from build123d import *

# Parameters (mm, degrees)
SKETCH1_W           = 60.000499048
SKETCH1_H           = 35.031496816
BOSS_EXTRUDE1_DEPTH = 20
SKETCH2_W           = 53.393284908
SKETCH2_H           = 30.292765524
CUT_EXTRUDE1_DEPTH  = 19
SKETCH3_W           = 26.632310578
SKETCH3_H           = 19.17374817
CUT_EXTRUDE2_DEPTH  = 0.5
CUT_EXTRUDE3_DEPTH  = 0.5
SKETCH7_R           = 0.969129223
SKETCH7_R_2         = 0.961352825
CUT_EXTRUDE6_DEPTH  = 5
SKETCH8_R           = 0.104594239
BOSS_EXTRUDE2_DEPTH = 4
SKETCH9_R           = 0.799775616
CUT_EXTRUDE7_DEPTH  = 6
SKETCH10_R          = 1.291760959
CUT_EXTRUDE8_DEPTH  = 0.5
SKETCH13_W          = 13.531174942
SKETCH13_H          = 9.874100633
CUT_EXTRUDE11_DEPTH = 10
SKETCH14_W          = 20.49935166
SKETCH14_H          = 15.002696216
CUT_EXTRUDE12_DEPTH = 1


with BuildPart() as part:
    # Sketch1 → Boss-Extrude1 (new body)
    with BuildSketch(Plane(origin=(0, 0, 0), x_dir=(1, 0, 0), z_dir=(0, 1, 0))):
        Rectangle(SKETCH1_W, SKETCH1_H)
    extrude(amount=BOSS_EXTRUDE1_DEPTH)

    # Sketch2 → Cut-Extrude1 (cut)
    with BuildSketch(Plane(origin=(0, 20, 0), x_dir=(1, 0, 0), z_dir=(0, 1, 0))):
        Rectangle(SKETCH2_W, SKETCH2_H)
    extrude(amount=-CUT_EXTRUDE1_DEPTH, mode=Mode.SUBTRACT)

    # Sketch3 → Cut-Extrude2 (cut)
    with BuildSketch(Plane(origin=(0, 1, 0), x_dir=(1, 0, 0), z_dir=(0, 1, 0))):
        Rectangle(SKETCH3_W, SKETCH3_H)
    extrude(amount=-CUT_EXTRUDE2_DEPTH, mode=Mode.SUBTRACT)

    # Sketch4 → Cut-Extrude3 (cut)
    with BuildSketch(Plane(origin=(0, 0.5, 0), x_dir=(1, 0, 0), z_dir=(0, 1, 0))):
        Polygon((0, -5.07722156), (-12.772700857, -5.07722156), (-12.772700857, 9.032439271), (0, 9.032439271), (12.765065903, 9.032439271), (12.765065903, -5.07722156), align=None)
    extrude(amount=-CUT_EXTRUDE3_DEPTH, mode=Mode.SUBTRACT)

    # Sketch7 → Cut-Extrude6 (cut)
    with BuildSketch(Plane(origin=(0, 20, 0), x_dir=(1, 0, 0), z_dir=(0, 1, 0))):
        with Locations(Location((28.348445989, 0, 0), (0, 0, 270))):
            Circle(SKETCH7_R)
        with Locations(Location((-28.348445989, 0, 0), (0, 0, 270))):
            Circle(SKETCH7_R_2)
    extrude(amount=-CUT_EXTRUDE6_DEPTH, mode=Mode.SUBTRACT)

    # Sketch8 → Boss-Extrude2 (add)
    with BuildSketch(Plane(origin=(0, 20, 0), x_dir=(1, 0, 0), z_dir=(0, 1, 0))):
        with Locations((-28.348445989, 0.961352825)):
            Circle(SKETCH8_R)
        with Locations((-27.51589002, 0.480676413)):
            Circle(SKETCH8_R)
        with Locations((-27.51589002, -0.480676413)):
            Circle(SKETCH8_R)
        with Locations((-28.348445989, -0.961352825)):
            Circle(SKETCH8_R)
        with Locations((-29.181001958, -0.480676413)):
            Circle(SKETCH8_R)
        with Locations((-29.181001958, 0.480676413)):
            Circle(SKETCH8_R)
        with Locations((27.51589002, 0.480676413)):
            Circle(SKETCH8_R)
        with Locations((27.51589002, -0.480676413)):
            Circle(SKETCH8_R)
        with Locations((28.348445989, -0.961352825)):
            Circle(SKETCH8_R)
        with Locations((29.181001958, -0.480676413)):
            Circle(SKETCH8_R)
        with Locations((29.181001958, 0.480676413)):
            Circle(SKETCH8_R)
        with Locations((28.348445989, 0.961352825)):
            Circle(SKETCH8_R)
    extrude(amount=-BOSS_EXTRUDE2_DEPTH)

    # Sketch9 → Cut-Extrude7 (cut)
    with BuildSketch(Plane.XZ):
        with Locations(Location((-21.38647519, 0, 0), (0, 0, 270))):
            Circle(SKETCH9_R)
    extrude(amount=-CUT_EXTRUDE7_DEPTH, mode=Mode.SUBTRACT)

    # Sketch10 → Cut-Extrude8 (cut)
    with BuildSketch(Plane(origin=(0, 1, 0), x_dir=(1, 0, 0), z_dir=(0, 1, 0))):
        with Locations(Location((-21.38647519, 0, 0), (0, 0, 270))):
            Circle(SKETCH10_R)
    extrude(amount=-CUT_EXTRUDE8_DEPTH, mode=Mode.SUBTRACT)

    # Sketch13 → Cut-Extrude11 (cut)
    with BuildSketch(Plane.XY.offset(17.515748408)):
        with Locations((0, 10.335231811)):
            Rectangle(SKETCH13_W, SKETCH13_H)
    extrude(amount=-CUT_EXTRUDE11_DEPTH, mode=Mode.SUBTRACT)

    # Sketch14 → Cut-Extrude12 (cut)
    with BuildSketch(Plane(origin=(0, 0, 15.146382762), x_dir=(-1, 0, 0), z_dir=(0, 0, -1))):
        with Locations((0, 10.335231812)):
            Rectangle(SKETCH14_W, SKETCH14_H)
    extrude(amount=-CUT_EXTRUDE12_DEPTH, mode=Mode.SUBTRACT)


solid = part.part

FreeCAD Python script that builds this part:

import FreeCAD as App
import Part
import Sketcher

V = App.Vector
Q = App.Units.Quantity

doc = App.newDocument("Part")
body = doc.addObject("PartDesign::Body", "Body")

# Sketch on XZ plane
sketch1 = body.newObject("Sketcher::SketchObject", "Sketch")
sketch1.AttachmentSupport = (doc.getObject("XZ_Plane"), [""])
sketch1.MapMode = "FlatFace"
sketch1.addGeometry(Part.LineSegment(V(-30.00025, -17.515748, 0), V(-30.00025, 17.515748, 0)), False)
sketch1.addGeometry(Part.LineSegment(V(-30.00025, 17.515748, 0), V(30.00025, 17.515748, 0)), False)
sketch1.addGeometry(Part.LineSegment(V(30.00025, 17.515748, 0), V(30.00025, -17.515748, 0)), False)
sketch1.addGeometry(Part.LineSegment(V(30.00025, -17.515748, 0), V(-30.00025, -17.515748, 0)), False)
sketch1.addConstraint(Sketcher.Constraint("Coincident", 0, 2, 1, 1))
sketch1.addConstraint(Sketcher.Constraint("Coincident", 1, 2, 2, 1))
sketch1.addConstraint(Sketcher.Constraint("Coincident", 2, 2, 3, 1))
sketch1.addConstraint(Sketcher.Constraint("Coincident", 3, 2, 0, 1))
sketch1.addConstraint(Sketcher.Constraint("Vertical", 0))
sketch1.addConstraint(Sketcher.Constraint("Horizontal", 1))
sketch1.addConstraint(Sketcher.Constraint("Vertical", 2))
sketch1.addConstraint(Sketcher.Constraint("Horizontal", 3))
sketch1.addConstraint(Sketcher.Constraint("Symmetric", 0, 2, 2, 2, -1, 1))
sketch1.addConstraint(Sketcher.Constraint("DistanceX", 1, 1, 1, 2, Q("60.000499 mm")))
sketch1.addConstraint(Sketcher.Constraint("DistanceY", 0, 1, 0, 2, Q("35.031497 mm")))
pad1 = body.newObject("PartDesign::Pad", "Pad")
pad1.Profile = sketch1
pad1.Length = 20
pad1.Reversed = True

# Sketch on XZ plane
sketch2 = body.newObject("Sketcher::SketchObject", "Sketch001")
sketch2.AttachmentSupport = (doc.getObject("XZ_Plane"), [""])
sketch2.MapMode = "FlatFace"
sketch2.AttachmentOffset = App.Placement(V(0, 0, -20), App.Rotation())
sketch2.addGeometry(Part.LineSegment(V(-26.696642, -15.146383, 0), V(-26.696642, 15.146383, 0)), False)
sketch2.addGeometry(Part.LineSegment(V(-26.696642, 15.146383, 0), V(26.696642, 15.146383, 0)), False)
sketch2.addGeometry(Part.LineSegment(V(26.696642, 15.146383, 0), V(26.696642, -15.146383, 0)), False)
sketch2.addGeometry(Part.LineSegment(V(26.696642, -15.146383, 0), V(-26.696642, -15.146383, 0)), False)
sketch2.addConstraint(Sketcher.Constraint("Coincident", 0, 2, 1, 1))
sketch2.addConstraint(Sketcher.Constraint("Coincident", 1, 2, 2, 1))
sketch2.addConstraint(Sketcher.Constraint("Coincident", 2, 2, 3, 1))
sketch2.addConstraint(Sketcher.Constraint("Coincident", 3, 2, 0, 1))
sketch2.addConstraint(Sketcher.Constraint("Vertical", 0))
sketch2.addConstraint(Sketcher.Constraint("Horizontal", 1))
sketch2.addConstraint(Sketcher.Constraint("Vertical", 2))
sketch2.addConstraint(Sketcher.Constraint("Horizontal", 3))
sketch2.addConstraint(Sketcher.Constraint("Symmetric", 0, 2, 2, 2, -1, 1))
sketch2.addConstraint(Sketcher.Constraint("DistanceX", 1, 1, 1, 2, Q("53.393285 mm")))
sketch2.addConstraint(Sketcher.Constraint("DistanceY", 0, 1, 0, 2, Q("30.292766 mm")))
pocket1 = body.newObject("PartDesign::Pocket", "Pocket")
pocket1.Profile = sketch2
pocket1.Length = 19
pocket1.Reversed = True

# Sketch on XZ plane
sketch3 = body.newObject("Sketcher::SketchObject", "Sketch002")
sketch3.AttachmentSupport = (doc.getObject("XZ_Plane"), [""])
sketch3.MapMode = "FlatFace"
sketch3.AttachmentOffset = App.Placement(V(0, 0, -1), App.Rotation())
sketch3.addGeometry(Part.LineSegment(V(-13.316155, -9.586874, 0), V(-13.316155, 9.586874, 0)), False)
sketch3.addGeometry(Part.LineSegment(V(-13.316155, 9.586874, 0), V(13.316155, 9.586874, 0)), False)
sketch3.addGeometry(Part.LineSegment(V(13.316155, 9.586874, 0), V(13.316155, -9.586874, 0)), False)
sketch3.addGeometry(Part.LineSegment(V(13.316155, -9.586874, 0), V(-13.316155, -9.586874, 0)), False)
sketch3.addConstraint(Sketcher.Constraint("Coincident", 0, 2, 1, 1))
sketch3.addConstraint(Sketcher.Constraint("Coincident", 1, 2, 2, 1))
sketch3.addConstraint(Sketcher.Constraint("Coincident", 2, 2, 3, 1))
sketch3.addConstraint(Sketcher.Constraint("Coincident", 3, 2, 0, 1))
sketch3.addConstraint(Sketcher.Constraint("Vertical", 0))
sketch3.addConstraint(Sketcher.Constraint("Horizontal", 1))
sketch3.addConstraint(Sketcher.Constraint("Vertical", 2))
sketch3.addConstraint(Sketcher.Constraint("Horizontal", 3))
sketch3.addConstraint(Sketcher.Constraint("Symmetric", 0, 2, 2, 2, -1, 1))
sketch3.addConstraint(Sketcher.Constraint("DistanceX", 1, 1, 1, 2, Q("26.632311 mm")))
sketch3.addConstraint(Sketcher.Constraint("DistanceY", 0, 1, 0, 2, Q("19.173748 mm")))
pocket2 = body.newObject("PartDesign::Pocket", "Pocket001")
pocket2.Profile = sketch3
pocket2.Length = 0.5
pocket2.Reversed = True

# Sketch on XZ plane
sketch4 = body.newObject("Sketcher::SketchObject", "Sketch003")
sketch4.AttachmentSupport = (doc.getObject("XZ_Plane"), [""])
sketch4.MapMode = "FlatFace"
sketch4.AttachmentOffset = App.Placement(V(0, 0, -0.5), App.Rotation())
sketch4.addGeometry(Part.LineSegment(V(-12.772701, 5.077222, 0), V(12.765066, 5.077222, 0)), False)
sketch4.addGeometry(Part.LineSegment(V(12.765066, 5.077222, 0), V(12.765066, -9.032439, 0)), False)
sketch4.addGeometry(Part.LineSegment(V(12.765066, -9.032439, 0), V(-12.772701, -9.032439, 0)), False)
sketch4.addGeometry(Part.LineSegment(V(-12.772701, -9.032439, 0), V(-12.772701, 5.077222, 0)), False)
sketch4.addConstraint(Sketcher.Constraint("Coincident", 0, 2, 1, 1))
sketch4.addConstraint(Sketcher.Constraint("Coincident", 1, 2, 2, 1))
sketch4.addConstraint(Sketcher.Constraint("Coincident", 2, 2, 3, 1))
sketch4.addConstraint(Sketcher.Constraint("Coincident", 3, 2, 0, 1))
sketch4.addConstraint(Sketcher.Constraint("Horizontal", 0))
sketch4.addConstraint(Sketcher.Constraint("Vertical", 1))
sketch4.addConstraint(Sketcher.Constraint("Horizontal", 2))
sketch4.addConstraint(Sketcher.Constraint("Vertical", 3))
sketch4.addConstraint(Sketcher.Constraint("DistanceY", 1, 2, 1, 1, Q("14.109661 mm")))
sketch4.addConstraint(Sketcher.Constraint("DistanceX", 2, 2, -1, 1, Q("12.772701 mm")))
sketch4.addConstraint(Sketcher.Constraint("DistanceX", 0, 1, 0, 2, Q("25.537767 mm")))
sketch4.addConstraint(Sketcher.Constraint("DistanceY", -1, 1, 0, 2, Q("5.077222 mm")))
pocket3 = body.newObject("PartDesign::Pocket", "Pocket002")
pocket3.Profile = sketch4
pocket3.Length = 0.5
pocket3.Reversed = True

# Sketch on XZ plane
sketch5 = body.newObject("Sketcher::SketchObject", "Sketch004")
sketch5.AttachmentSupport = (doc.getObject("XZ_Plane"), [""])
sketch5.MapMode = "FlatFace"
sketch5.AttachmentOffset = App.Placement(V(0, 0, -20), App.Rotation())
sketch5.addGeometry(Part.Circle(V(28.348446, 0, 0), V(0, 0, 1), 0.969129), False)
sketch5.addGeometry(Part.Circle(V(-28.348446, 0, 0), V(0, 0, 1), 0.961353), False)
sketch5.addConstraint(Sketcher.Constraint("Symmetric", 0, 3, 1, 3, -1, 1))
sketch5.addConstraint(Sketcher.Constraint("PointOnObject", 0, 3, -1))
sketch5.addConstraint(Sketcher.Constraint("Diameter", 0, Q("1.938258 mm")))
sketch5.addConstraint(Sketcher.Constraint("Diameter", 1, Q("1.922706 mm")))
sketch5.addConstraint(Sketcher.Constraint("DistanceX", 1, 3, 0, 3, Q("56.696892 mm")))
pocket4 = body.newObject("PartDesign::Pocket", "Pocket003")
pocket4.Profile = sketch5
pocket4.Length = 5
pocket4.Reversed = True

# Sketch on XZ plane
sketch6 = body.newObject("Sketcher::SketchObject", "Sketch005")
sketch6.AttachmentSupport = (doc.getObject("XZ_Plane"), [""])
sketch6.MapMode = "FlatFace"
sketch6.AttachmentOffset = App.Placement(V(0, 0, -20), App.Rotation())
sketch6.addGeometry(Part.Circle(V(-28.348446, -0.961353, 0), V(0, 0, 1), 0.104594), False)
sketch6.addGeometry(Part.Circle(V(-27.51589, -0.480676, 0), V(0, 0, 1), 0.104594), False)
sketch6.addGeometry(Part.Circle(V(-27.51589, 0.480676, 0), V(0, 0, 1), 0.104594), False)
sketch6.addGeometry(Part.Circle(V(-28.348446, 0.961353, 0), V(0, 0, 1), 0.104594), False)
sketch6.addGeometry(Part.Circle(V(-29.181002, 0.480676, 0), V(0, 0, 1), 0.104594), False)
sketch6.addGeometry(Part.Circle(V(-29.181002, -0.480676, 0), V(0, 0, 1), 0.104594), False)
sketch6.addGeometry(Part.Circle(V(27.51589, -0.480676, 0), V(0, 0, 1), 0.104594), False)
sketch6.addGeometry(Part.Circle(V(27.51589, 0.480676, 0), V(0, 0, 1), 0.104594), False)
sketch6.addGeometry(Part.Circle(V(28.348446, 0.961353, 0), V(0, 0, 1), 0.104594), False)
sketch6.addGeometry(Part.Circle(V(29.181002, 0.480676, 0), V(0, 0, 1), 0.104594), False)
sketch6.addGeometry(Part.Circle(V(29.181002, -0.480676, 0), V(0, 0, 1), 0.104594), False)
sketch6.addGeometry(Part.Circle(V(28.348446, -0.961353, 0), V(0, 0, 1), 0.104594), False)
sketch6.addConstraint(Sketcher.Constraint("Equal", 0, 1))
sketch6.addConstraint(Sketcher.Constraint("Equal", 1, 2))
sketch6.addConstraint(Sketcher.Constraint("Equal", 2, 3))
sketch6.addConstraint(Sketcher.Constraint("Equal", 3, 4))
sketch6.addConstraint(Sketcher.Constraint("Equal", 4, 5))
sketch6.addConstraint(Sketcher.Constraint("Equal", 5, 6))
sketch6.addConstraint(Sketcher.Constraint("Equal", 6, 7))
sketch6.addConstraint(Sketcher.Constraint("Equal", 7, 8))
sketch6.addConstraint(Sketcher.Constraint("Equal", 8, 9))
sketch6.addConstraint(Sketcher.Constraint("Equal", 9, 10))
sketch6.addConstraint(Sketcher.Constraint("Equal", 10, 11))
sketch6.addConstraint(Sketcher.Constraint("Symmetric", 2, 3, 6, 3, -1, 1))
sketch6.addConstraint(Sketcher.Constraint("Symmetric", 1, 3, 7, 3, -1, 1))
sketch6.addConstraint(Sketcher.Constraint("Symmetric", 0, 3, 8, 3, -1, 1))
sketch6.addConstraint(Sketcher.Constraint("Symmetric", 5, 3, 9, 3, -1, 1))
sketch6.addConstraint(Sketcher.Constraint("Symmetric", 4, 3, 10, 3, -1, 1))
sketch6.addConstraint(Sketcher.Constraint("Symmetric", 3, 3, 11, 3, -1, 1))
sketch6.addConstraint(Sketcher.Constraint("Symmetric", 1, 3, 6, 3, -2))
sketch6.addConstraint(Sketcher.Constraint("Symmetric", 3, 3, 8, 3, -2))
sketch6.addConstraint(Sketcher.Constraint("Symmetric", 4, 3, 9, 3, -2))
sketch6.addConstraint(Sketcher.Constraint("Horizontal", 2, 3, 4, 3))
sketch6.addConstraint(Sketcher.Constraint("Diameter", 0, Q("0.209188 mm")))
sketch6.addConstraint(Sketcher.Constraint("DistanceX", 4, 3, -1, 1, Q("29.181002 mm")))
sketch6.addConstraint(Sketcher.Constraint("DistanceX", 1, 3, -1, 1, Q("27.51589 mm")))
sketch6.addConstraint(Sketcher.Constraint("DistanceY", 0, 3, 2, 3, Q("1.442029 mm")))
sketch6.addConstraint(Sketcher.Constraint("DistanceX", 3, 3, 8, 3, Q("56.696892 mm")))
sketch6.addConstraint(Sketcher.Constraint("DistanceY", 0, 3, -1, 1, Q("0.961353 mm")))
pad2 = body.newObject("PartDesign::Pad", "Pad001")
pad2.Profile = sketch6
pad2.Length = 4

# Sketch on XZ plane
sketch7 = body.newObject("Sketcher::SketchObject", "Sketch006")
sketch7.AttachmentSupport = (doc.getObject("XZ_Plane"), [""])
sketch7.MapMode = "FlatFace"
sketch7.addGeometry(Part.Circle(V(-21.386475, 0, 0), V(0, 0, 1), 0.799776), False)
sketch7.addConstraint(Sketcher.Constraint("PointOnObject", 0, 3, -1))
sketch7.addConstraint(Sketcher.Constraint("Diameter", 0, Q("1.599551 mm")))
sketch7.addConstraint(Sketcher.Constraint("DistanceX", 0, 3, -1, 1, Q("21.386475 mm")))
pocket5 = body.newObject("PartDesign::Pocket", "Pocket004")
pocket5.Profile = sketch7
pocket5.Length = 6

# Sketch on XZ plane
sketch8 = body.newObject("Sketcher::SketchObject", "Sketch007")
sketch8.AttachmentSupport = (doc.getObject("XZ_Plane"), [""])
sketch8.MapMode = "FlatFace"
sketch8.AttachmentOffset = App.Placement(V(0, 0, -1), App.Rotation())
sketch8.addGeometry(Part.Circle(V(-21.386475, 0, 0), V(0, 0, 1), 1.291761), False)
sketch8.addConstraint(Sketcher.Constraint("PointOnObject", 0, 3, -1))
sketch8.addConstraint(Sketcher.Constraint("Diameter", 0, Q("2.583522 mm")))
sketch8.addConstraint(Sketcher.Constraint("DistanceX", 0, 3, -1, 1, Q("21.386475 mm")))
pocket6 = body.newObject("PartDesign::Pocket", "Pocket005")
pocket6.Profile = sketch8
pocket6.Length = 0.5
pocket6.Reversed = True

# Sketch on XY plane
sketch9 = body.newObject("Sketcher::SketchObject", "Sketch008")
sketch9.AttachmentSupport = (doc.getObject("XY_Plane"), [""])
sketch9.MapMode = "FlatFace"
sketch9.AttachmentOffset = App.Placement(V(0, 0, 17.515748), App.Rotation())
sketch9.addGeometry(Part.LineSegment(V(-6.765587, 15.272282, 0), V(-6.765587, 5.398181, 0)), False)
sketch9.addGeometry(Part.LineSegment(V(-6.765587, 5.398181, 0), V(6.765587, 5.398181, 0)), False)
sketch9.addGeometry(Part.LineSegment(V(6.765587, 5.398181, 0), V(6.765587, 15.272282, 0)), False)
sketch9.addGeometry(Part.LineSegment(V(6.765587, 15.272282, 0), V(-6.765587, 15.272282, 0)), False)
sketch9.addConstraint(Sketcher.Constraint("Coincident", 0, 2, 1, 1))
sketch9.addConstraint(Sketcher.Constraint("Coincident", 1, 2, 2, 1))
sketch9.addConstraint(Sketcher.Constraint("Coincident", 2, 2, 3, 1))
sketch9.addConstraint(Sketcher.Constraint("Coincident", 3, 2, 0, 1))
sketch9.addConstraint(Sketcher.Constraint("Vertical", 0))
sketch9.addConstraint(Sketcher.Constraint("Horizontal", 1))
sketch9.addConstraint(Sketcher.Constraint("Vertical", 2))
sketch9.addConstraint(Sketcher.Constraint("Horizontal", 3))
sketch9.addConstraint(Sketcher.Constraint("DistanceY", 0, 2, 0, 1, Q("9.874101 mm")))
sketch9.addConstraint(Sketcher.Constraint("DistanceX", 1, 1, 1, 2, Q("13.531175 mm")))
sketch9.addConstraint(Sketcher.Constraint("DistanceY", -1, 1, 0, 2, Q("5.398181 mm")))
sketch9.addConstraint(Sketcher.Constraint("DistanceX", 0, 2, -1, 1, Q("6.765587 mm")))
pocket7 = body.newObject("PartDesign::Pocket", "Pocket006")
pocket7.Profile = sketch9
pocket7.Length = 10

# Sketch on XY plane
sketch10 = body.newObject("Sketcher::SketchObject", "Sketch009")
sketch10.AttachmentSupport = (doc.getObject("XY_Plane"), [""])
sketch10.MapMode = "FlatFace"
sketch10.AttachmentOffset = App.Placement(V(0, 0, 15.146383), App.Rotation())
sketch10.addGeometry(Part.LineSegment(V(10.249676, 17.83658, 0), V(10.249676, 2.833884, 0)), False)
sketch10.addGeometry(Part.LineSegment(V(10.249676, 2.833884, 0), V(-10.249676, 2.833884, 0)), False)
sketch10.addGeometry(Part.LineSegment(V(-10.249676, 2.833884, 0), V(-10.249676, 17.83658, 0)), False)
sketch10.addGeometry(Part.LineSegment(V(-10.249676, 17.83658, 0), V(10.249676, 17.83658, 0)), False)
sketch10.addConstraint(Sketcher.Constraint("Coincident", 0, 2, 1, 1))
sketch10.addConstraint(Sketcher.Constraint("Coincident", 1, 2, 2, 1))
sketch10.addConstraint(Sketcher.Constraint("Coincident", 2, 2, 3, 1))
sketch10.addConstraint(Sketcher.Constraint("Coincident", 3, 2, 0, 1))
sketch10.addConstraint(Sketcher.Constraint("Vertical", 0))
sketch10.addConstraint(Sketcher.Constraint("Horizontal", 1))
sketch10.addConstraint(Sketcher.Constraint("Vertical", 2))
sketch10.addConstraint(Sketcher.Constraint("Horizontal", 3))
sketch10.addConstraint(Sketcher.Constraint("DistanceX", 1, 2, 1, 1, Q("20.499352 mm")))
sketch10.addConstraint(Sketcher.Constraint("DistanceY", 0, 2, 0, 1, Q("15.002696 mm")))
sketch10.addConstraint(Sketcher.Constraint("DistanceY", -1, 1, 2, 2, Q("17.83658 mm")))
sketch10.addConstraint(Sketcher.Constraint("DistanceX", -1, 1, 0, 2, Q("10.249676 mm")))
pocket8 = body.newObject("PartDesign::Pocket", "Pocket007")
pocket8.Profile = sketch10
pocket8.Length = 1
pocket8.Reversed = True

doc.recompute()
